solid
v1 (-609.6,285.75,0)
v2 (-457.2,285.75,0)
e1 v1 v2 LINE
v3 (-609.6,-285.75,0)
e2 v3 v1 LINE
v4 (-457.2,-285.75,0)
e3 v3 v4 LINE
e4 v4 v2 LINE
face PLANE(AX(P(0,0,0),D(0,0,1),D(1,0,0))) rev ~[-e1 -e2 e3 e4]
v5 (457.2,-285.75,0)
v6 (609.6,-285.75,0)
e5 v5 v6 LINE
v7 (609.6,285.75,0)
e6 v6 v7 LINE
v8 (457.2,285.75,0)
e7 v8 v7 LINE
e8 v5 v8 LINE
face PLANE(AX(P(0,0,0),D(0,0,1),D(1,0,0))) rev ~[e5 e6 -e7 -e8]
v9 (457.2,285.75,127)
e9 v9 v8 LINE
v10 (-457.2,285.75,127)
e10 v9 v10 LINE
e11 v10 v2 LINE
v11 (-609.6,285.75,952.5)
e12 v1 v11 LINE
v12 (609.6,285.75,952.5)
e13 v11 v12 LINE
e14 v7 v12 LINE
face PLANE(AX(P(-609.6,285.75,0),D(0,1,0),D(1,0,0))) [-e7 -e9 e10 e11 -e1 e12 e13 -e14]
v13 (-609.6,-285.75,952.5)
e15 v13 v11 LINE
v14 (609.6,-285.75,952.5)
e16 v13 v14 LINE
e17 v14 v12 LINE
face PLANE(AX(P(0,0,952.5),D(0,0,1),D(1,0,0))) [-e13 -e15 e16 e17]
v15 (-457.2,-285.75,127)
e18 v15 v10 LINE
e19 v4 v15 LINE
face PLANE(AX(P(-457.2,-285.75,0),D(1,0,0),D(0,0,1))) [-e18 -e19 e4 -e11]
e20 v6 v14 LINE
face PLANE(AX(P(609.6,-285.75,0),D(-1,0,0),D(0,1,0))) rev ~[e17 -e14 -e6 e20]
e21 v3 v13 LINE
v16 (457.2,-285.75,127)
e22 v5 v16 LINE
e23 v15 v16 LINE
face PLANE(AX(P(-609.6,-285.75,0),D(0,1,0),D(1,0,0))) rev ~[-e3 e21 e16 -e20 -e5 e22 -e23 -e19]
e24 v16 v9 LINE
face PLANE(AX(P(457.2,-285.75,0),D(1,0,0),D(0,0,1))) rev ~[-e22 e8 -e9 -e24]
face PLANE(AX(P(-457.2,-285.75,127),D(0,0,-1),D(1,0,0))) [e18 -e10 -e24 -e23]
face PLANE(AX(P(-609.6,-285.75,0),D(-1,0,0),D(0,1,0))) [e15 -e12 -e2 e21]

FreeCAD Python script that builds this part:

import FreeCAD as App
import Part
import Sketcher
from FreeCAD import Vector
Q = App.Units.Quantity


def add_polygon(sketch, points):
    """Adds a closed chain of lines whose ends are joined by coincident constraints."""
    first, n = sketch.GeometryCount, len(points)
    for a, b in zip(points, points[1:] + points[:1]):
        sketch.addGeometry(Part.LineSegment(App.Vector(*a, 0), App.Vector(*b, 0)), False)
    for i in range(n):
        sketch.addConstraint(Sketcher.Constraint("Coincident", first + i, 2, first + (i + 1) % n, 1))

doc = App.newDocument("Part")
body = doc.addObject("PartDesign::Body", "Body")

# Sketch on XY plane
sketch1 = doc.addObject("Sketcher::SketchObject", "Sketch")
body.addObject(sketch1)
sketch1.AttachmentSupport = (doc.XY_Plane, [""])
sketch1.MapMode = "FlatFace"
add_polygon(sketch1, [(-610, 286), (-610, -286), (610, -286), (610, 286)])  # lines 0-3
sketch1.addConstraint([
    Sketcher.Constraint("Vertical", 0),
    Sketcher.Constraint("Horizontal", 1),
    Sketcher.Constraint("Vertical", 2),
    Sketcher.Constraint("Horizontal", 3),
    Sketcher.Constraint("Symmetric", 0, 2, 2, 2, -1, 1),
    Sketcher.Constraint("DistanceX", 1, 1, 1, 2, Q("48 in")),
    Sketcher.Constraint("DistanceY", 0, 2, 0, 1, Q("22.5 in")),
])
pad1 = doc.addObject("PartDesign::Pad", "Pad")
body.addObject(pad1)
pad1.Profile = sketch1
pad1.Length = Q("37.5 in")

# Sketch on XZ plane
sketch2 = doc.addObject("Sketcher::SketchObject", "Sketch001")
body.addObject(sketch2)
sketch2.AttachmentSupport = (doc.XZ_Plane, [""])
sketch2.MapMode = "FlatFace"
sketch2.AttachmentOffset = App.Placement(Vector(0, 0, 11.25 * 25.4), App.Rotation())
add_polygon(sketch2, [(-457, 127), (-457, 0), (457, 0), (457, 127)])  # lines 0-3
sketch2.addConstraint([
    Sketcher.Constraint("Vertical", 0),
    Sketcher.Constraint("Horizontal", 1),
    Sketcher.Constraint("Vertical", 2),
    Sketcher.Constraint("Horizontal", 3),
    Sketcher.Constraint("Symmetric", 0, 2, 1, 2, -1, 1),
    Sketcher.Constraint("DistanceX", 1, 1, 1, 2, Q("36 in")),
    Sketcher.Constraint("DistanceY", 0, 2, 0, 1, Q("5 in")),
])
pocket1 = doc.addObject("PartDesign::Pocket", "Pocket")
body.addObject(pocket1)
pocket1.Profile = sketch2
pocket1.Type = "ThroughAll"

doc.recompute()
